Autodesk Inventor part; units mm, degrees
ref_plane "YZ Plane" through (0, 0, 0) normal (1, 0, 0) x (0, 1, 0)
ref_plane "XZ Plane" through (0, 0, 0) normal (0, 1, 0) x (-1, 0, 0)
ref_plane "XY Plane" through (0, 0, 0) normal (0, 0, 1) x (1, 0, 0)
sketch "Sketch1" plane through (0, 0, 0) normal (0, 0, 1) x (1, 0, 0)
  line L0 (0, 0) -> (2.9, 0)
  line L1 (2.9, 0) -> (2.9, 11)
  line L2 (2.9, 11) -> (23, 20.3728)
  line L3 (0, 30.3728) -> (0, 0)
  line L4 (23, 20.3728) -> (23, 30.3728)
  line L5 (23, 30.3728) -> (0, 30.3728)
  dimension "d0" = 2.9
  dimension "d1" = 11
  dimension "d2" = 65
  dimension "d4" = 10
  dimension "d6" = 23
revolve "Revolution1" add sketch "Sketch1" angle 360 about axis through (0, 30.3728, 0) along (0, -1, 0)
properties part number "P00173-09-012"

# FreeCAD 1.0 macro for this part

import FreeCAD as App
import Part
import Sketcher
from FreeCAD import Vector
Q = App.Units.Quantity

doc = App.newDocument("Part")
body = doc.addObject("PartDesign::Body", "Body")

sketch1 = body.newObject("Sketcher::SketchObject", "Sketch")
sketch1.AttachmentSupport = (doc.getObject("XY_Plane"), [""])
sketch1.MapMode = "FlatFace"
sketch1.addGeometry([
    Part.LineSegment(Vector(0, 30.4, 0), Vector(0, 0, 0)),
    Part.LineSegment(Vector(0, 0, 0), Vector(2.9, 0, 0)),
    Part.LineSegment(Vector(2.9, 0, 0), Vector(2.9, 11, 0)),
    Part.LineSegment(Vector(2.9, 11, 0), Vector(23, 20.4, 0)),
    Part.LineSegment(Vector(23, 20.4, 0), Vector(23, 30.4, 0)),
    Part.LineSegment(Vector(23, 30.4, 0), Vector(0, 30.4, 0)),
], False)
sketch1.addConstraint([
    Sketcher.Constraint("Coincident", 0, 2, 1, 1),
    Sketcher.Constraint("Coincident", 1, 2, 2, 1),
    Sketcher.Constraint("Coincident", 2, 2, 3, 1),
    Sketcher.Constraint("Coincident", 3, 2, 4, 1),
    Sketcher.Constraint("Coincident", 4, 2, 5, 1),
    Sketcher.Constraint("Coincident", 5, 2, 0, 1),
    Sketcher.Constraint("Vertical", 0),
    Sketcher.Constraint("Horizontal", 1),
    Sketcher.Constraint("Vertical", 2),
    Sketcher.Constraint("Vertical", 4),
    Sketcher.Constraint("Horizontal", 5),
    Sketcher.Constraint("Coincident", 0, 2, -1, 1),
    Sketcher.Constraint("DistanceX", 5, 2, 5, 1, Q("23 mm")),
    Sketcher.Constraint("DistanceY", 2, 1, 2, 2, Q("11 mm")),
    Sketcher.Constraint("DistanceY", 4, 1, 4, 2, Q("10 mm")),
    Sketcher.Constraint("DistanceX", 1, 1, 1, 2, Q("2.9 mm")),
    Sketcher.Constraint("Angle", 3, Q("25 deg")),
])
revolution = body.newObject("PartDesign::Revolution", "Revolution")
revolution.Profile = sketch1
revolution.ReferenceAxis = (sketch1, ["V_Axis"])
revolution.Angle = 360

doc.recompute()
